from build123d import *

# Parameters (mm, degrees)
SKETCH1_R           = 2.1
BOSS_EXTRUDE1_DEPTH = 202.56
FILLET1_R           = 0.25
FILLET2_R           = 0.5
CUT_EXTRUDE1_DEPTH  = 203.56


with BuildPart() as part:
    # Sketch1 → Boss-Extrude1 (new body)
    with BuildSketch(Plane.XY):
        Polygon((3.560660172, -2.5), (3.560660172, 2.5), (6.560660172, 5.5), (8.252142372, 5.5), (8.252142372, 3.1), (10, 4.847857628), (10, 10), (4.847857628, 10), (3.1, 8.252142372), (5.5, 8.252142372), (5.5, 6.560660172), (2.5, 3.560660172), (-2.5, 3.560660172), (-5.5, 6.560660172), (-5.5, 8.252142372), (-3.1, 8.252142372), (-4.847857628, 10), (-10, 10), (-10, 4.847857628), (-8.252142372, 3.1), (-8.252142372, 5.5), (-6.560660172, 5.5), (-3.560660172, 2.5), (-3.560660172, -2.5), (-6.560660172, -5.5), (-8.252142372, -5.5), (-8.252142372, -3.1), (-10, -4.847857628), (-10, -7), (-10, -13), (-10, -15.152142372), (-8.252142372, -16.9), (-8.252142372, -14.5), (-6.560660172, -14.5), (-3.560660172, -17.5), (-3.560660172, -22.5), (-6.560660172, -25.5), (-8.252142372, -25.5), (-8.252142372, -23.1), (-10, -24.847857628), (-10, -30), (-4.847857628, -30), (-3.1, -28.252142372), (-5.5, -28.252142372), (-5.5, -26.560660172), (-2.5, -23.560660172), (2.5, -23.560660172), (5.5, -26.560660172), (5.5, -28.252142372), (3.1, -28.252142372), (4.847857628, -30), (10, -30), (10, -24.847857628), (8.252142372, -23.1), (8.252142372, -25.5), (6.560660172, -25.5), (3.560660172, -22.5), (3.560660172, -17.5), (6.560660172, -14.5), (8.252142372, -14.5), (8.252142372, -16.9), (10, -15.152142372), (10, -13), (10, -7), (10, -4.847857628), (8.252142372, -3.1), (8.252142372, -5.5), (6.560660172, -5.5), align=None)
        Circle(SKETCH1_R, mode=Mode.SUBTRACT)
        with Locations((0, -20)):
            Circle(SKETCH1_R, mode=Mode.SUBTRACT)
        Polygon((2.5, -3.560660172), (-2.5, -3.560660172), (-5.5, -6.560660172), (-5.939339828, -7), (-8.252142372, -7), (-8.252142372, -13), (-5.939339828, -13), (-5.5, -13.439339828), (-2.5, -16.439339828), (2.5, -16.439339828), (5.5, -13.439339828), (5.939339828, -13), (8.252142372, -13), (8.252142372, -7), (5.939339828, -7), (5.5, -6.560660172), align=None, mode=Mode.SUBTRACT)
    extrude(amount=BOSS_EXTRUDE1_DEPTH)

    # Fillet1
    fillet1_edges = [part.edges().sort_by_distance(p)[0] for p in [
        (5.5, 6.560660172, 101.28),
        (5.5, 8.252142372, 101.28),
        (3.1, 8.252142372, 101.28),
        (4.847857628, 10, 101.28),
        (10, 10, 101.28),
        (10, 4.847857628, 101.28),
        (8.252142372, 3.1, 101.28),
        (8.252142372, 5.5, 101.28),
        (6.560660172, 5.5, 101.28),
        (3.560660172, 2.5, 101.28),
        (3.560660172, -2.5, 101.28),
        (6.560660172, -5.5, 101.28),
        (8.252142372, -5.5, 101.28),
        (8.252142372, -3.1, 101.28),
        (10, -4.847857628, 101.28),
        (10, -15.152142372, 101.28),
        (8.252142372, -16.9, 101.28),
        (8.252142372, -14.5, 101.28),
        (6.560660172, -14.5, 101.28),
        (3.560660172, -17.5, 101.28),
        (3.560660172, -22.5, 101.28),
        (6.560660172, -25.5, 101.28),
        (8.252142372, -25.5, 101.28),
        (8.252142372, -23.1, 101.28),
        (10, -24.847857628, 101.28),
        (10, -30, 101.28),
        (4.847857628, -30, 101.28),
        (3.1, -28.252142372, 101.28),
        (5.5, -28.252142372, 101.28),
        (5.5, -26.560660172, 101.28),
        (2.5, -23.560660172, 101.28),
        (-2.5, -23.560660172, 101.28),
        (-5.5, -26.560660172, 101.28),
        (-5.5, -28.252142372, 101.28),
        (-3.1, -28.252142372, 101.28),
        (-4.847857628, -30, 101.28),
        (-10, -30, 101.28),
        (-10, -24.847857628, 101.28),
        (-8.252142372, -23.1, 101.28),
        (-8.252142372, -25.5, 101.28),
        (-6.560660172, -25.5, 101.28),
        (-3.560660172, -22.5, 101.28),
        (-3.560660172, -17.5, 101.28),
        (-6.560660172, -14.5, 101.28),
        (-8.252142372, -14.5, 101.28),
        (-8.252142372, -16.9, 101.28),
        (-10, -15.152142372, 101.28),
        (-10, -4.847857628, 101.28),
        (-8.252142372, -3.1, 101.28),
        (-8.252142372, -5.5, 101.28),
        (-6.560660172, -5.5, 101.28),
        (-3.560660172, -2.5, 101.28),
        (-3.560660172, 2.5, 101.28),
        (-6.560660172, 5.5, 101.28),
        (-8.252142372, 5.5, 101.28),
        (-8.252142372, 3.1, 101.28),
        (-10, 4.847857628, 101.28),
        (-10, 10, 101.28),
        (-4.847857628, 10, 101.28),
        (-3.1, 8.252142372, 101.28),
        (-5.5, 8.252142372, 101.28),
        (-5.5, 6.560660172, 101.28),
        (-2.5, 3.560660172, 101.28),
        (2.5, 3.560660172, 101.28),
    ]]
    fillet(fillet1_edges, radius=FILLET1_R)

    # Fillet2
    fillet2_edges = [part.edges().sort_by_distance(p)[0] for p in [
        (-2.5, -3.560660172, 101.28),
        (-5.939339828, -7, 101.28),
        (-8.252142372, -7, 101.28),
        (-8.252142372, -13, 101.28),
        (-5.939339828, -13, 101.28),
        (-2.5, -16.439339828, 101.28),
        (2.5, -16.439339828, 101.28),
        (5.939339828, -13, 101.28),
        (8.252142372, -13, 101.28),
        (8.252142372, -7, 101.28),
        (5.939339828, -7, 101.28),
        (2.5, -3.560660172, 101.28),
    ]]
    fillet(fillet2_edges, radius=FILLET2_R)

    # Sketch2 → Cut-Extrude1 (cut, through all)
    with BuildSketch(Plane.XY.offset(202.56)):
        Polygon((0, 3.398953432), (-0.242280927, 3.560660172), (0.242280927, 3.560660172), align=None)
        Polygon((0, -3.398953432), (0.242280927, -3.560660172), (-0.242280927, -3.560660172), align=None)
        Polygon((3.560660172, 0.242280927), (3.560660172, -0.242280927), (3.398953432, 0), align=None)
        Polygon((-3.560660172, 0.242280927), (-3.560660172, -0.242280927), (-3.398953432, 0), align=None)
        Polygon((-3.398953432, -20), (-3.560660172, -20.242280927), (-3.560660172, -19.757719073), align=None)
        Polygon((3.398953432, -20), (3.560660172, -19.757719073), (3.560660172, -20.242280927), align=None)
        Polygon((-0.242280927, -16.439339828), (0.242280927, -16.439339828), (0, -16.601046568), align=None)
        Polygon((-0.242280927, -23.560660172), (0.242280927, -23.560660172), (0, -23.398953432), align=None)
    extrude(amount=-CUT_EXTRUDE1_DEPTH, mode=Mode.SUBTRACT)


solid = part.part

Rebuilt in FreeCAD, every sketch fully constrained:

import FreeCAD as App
import Part
import Sketcher


def edges_at(feature, points):
    """Names of the edges that pass closest to the given points."""
    edges = feature.Shape.Edges
    near = lambda p: min(range(len(edges)), key=lambda i: edges[i].distToShape(Part.Vertex(*p))[0])
    return sorted({f"Edge{near(p) + 1}" for p in points})

doc = App.newDocument("Part")
params = doc.addObject("Spreadsheet::Sheet", "Params")
for row, (alias, value) in enumerate([
    ("sketch1_diameter", "4.2 mm"),
    ("sketch1_width", "5 mm"),
    ("sketch1_height", "6 mm"),
    ("sketch1_width2", "2.4 mm"),
    ("pad1_length", "202.56 mm"),
    ("fillet_radius", "0.25 mm"),
    ("fillet2_radius", "0.5 mm"),
], start=1):
    params.set(f"A{row}", alias)
    params.set(f"B{row}", "=" + value)
    params.setAlias(f"B{row}", alias)

body = doc.addObject("PartDesign::Body", "Body")

sketch1 = body.newObject("Sketcher::SketchObject", "Sketch")
sketch1.AttachmentSupport = (doc.getObject("XY_Plane"), [""])
sketch1.MapMode = "FlatFace"
sketch1.addGeometry(Part.LineSegment(App.Vector(3.56066, -2.5, 0), App.Vector(3.56066, 2.5, 0)), False)
sketch1.addGeometry(Part.LineSegment(App.Vector(3.56066, 2.5, 0), App.Vector(6.56066, 5.5, 0)), False)
sketch1.addGeometry(Part.LineSegment(App.Vector(6.56066, 5.5, 0), App.Vector(8.252142, 5.5, 0)), False)
sketch1.addGeometry(Part.LineSegment(App.Vector(8.252142, 5.5, 0), App.Vector(8.252142, 3.1, 0)), False)
sketch1.addGeometry(Part.LineSegment(App.Vector(8.252142, 3.1, 0), App.Vector(10, 4.847858, 0)), False)
sketch1.addGeometry(Part.LineSegment(App.Vector(10, 4.847858, 0), App.Vector(10, 10, 0)), False)
sketch1.addGeometry(Part.LineSegment(App.Vector(10, 10, 0), App.Vector(4.847858, 10, 0)), False)
sketch1.addGeometry(Part.LineSegment(App.Vector(4.847858, 10, 0), App.Vector(3.1, 8.252142, 0)), False)
sketch1.addGeometry(Part.LineSegment(App.Vector(3.1, 8.252142, 0), App.Vector(5.5, 8.252142, 0)), False)
sketch1.addGeometry(Part.LineSegment(App.Vector(5.5, 8.252142, 0), App.Vector(5.5, 6.56066, 0)), False)
sketch1.addGeometry(Part.LineSegment(App.Vector(5.5, 6.56066, 0), App.Vector(2.5, 3.56066, 0)), False)
sketch1.addGeometry(Part.LineSegment(App.Vector(2.5, 3.56066, 0), App.Vector(-2.5, 3.56066, 0)), False)
sketch1.addGeometry(Part.LineSegment(App.Vector(-2.5, 3.56066, 0), App.Vector(-5.5, 6.56066, 0)), False)
sketch1.addGeometry(Part.LineSegment(App.Vector(-5.5, 6.56066, 0), App.Vector(-5.5, 8.252142, 0)), False)
sketch1.addGeometry(Part.LineSegment(App.Vector(-5.5, 8.252142, 0), App.Vector(-3.1, 8.252142, 0)), False)
sketch1.addGeometry(Part.LineSegment(App.Vector(-3.1, 8.252142, 0), App.Vector(-4.847858, 10, 0)), False)
sketch1.addGeometry(Part.LineSegment(App.Vector(-4.847858, 10, 0), App.Vector(-10, 10, 0)), False)
sketch1.addGeometry(Part.LineSegment(App.Vector(-10, 10, 0), App.Vector(-10, 4.847858, 0)), False)
sketch1.addGeometry(Part.LineSegment(App.Vector(-10, 4.847858, 0), App.Vector(-8.252142, 3.1, 0)), False)
sketch1.addGeometry(Part.LineSegment(App.Vector(-8.252142, 3.1, 0), App.Vector(-8.252142, 5.5, 0)), False)
sketch1.addGeometry(Part.LineSegment(App.Vector(-8.252142, 5.5, 0), App.Vector(-6.56066, 5.5, 0)), False)
sketch1.addGeometry(Part.LineSegment(App.Vector(-6.56066, 5.5, 0), App.Vector(-3.56066, 2.5, 0)), False)
sketch1.addGeometry(Part.LineSegment(App.Vector(-3.56066, 2.5, 0), App.Vector(-3.56066, -2.5, 0)), False)
sketch1.addGeometry(Part.LineSegment(App.Vector(-3.56066, -2.5, 0), App.Vector(-6.56066, -5.5, 0)), False)
sketch1.addGeometry(Part.LineSegment(App.Vector(-6.56066, -5.5, 0), App.Vector(-8.252142, -5.5, 0)), False)
sketch1.addGeometry(Part.LineSegment(App.Vector(-8.252142, -5.5, 0), App.Vector(-8.252142, -3.1, 0)), False)
sketch1.addGeometry(Part.LineSegment(App.Vector(-8.252142, -3.1, 0), App.Vector(-10, -4.847858, 0)), False)
sketch1.addGeometry(Part.LineSegment(App.Vector(-10, -4.847858, 0), App.Vector(-10, -15.152142, 0)), False)
sketch1.addGeometry(Part.LineSegment(App.Vector(-10, -15.152142, 0), App.Vector(-8.252142, -16.9, 0)), False)
sketch1.addGeometry(Part.LineSegment(App.Vector(-8.252142, -16.9, 0), App.Vector(-8.252142, -14.5, 0)), False)
sketch1.addGeometry(Part.LineSegment(App.Vector(-8.252142, -14.5, 0), App.Vector(-6.56066, -14.5, 0)), False)
sketch1.addGeometry(Part.LineSegment(App.Vector(-6.56066, -14.5, 0), App.Vector(-3.56066, -17.5, 0)), False)
sketch1.addGeometry(Part.LineSegment(App.Vector(-3.56066, -17.5, 0), App.Vector(-3.56066, -22.5, 0)), False)
sketch1.addGeometry(Part.LineSegment(App.Vector(-3.56066, -22.5, 0), App.Vector(-6.56066, -25.5, 0)), False)
sketch1.addGeometry(Part.LineSegment(App.Vector(-6.56066, -25.5, 0), App.Vector(-8.252142, -25.5, 0)), False)
sketch1.addGeometry(Part.LineSegment(App.Vector(-8.252142, -25.5, 0), App.Vector(-8.252142, -23.1, 0)), False)
sketch1.addGeometry(Part.LineSegment(App.Vector(-8.252142, -23.1, 0), App.Vector(-10, -24.847858, 0)), False)
sketch1.addGeometry(Part.LineSegment(App.Vector(-10, -24.847858, 0), App.Vector(-10, -30, 0)), False)
sketch1.addGeometry(Part.LineSegment(App.Vector(-10, -30, 0), App.Vector(-4.847858, -30, 0)), False)
sketch1.addGeometry(Part.LineSegment(App.Vector(-4.847858, -30, 0), App.Vector(-3.1, -28.252142, 0)), False)
sketch1.addGeometry(Part.LineSegment(App.Vector(-3.1, -28.252142, 0), App.Vector(-5.5, -28.252142, 0)), False)
sketch1.addGeometry(Part.LineSegment(App.Vector(-5.5, -28.252142, 0), App.Vector(-5.5, -26.56066, 0)), False)
sketch1.addGeometry(Part.LineSegment(App.Vector(-5.5, -26.56066, 0), App.Vector(-2.5, -23.56066, 0)), False)
sketch1.addGeometry(Part.LineSegment(App.Vector(-2.5, -23.56066, 0), App.Vector(2.5, -23.56066, 0)), False)
sketch1.addGeometry(Part.LineSegment(App.Vector(2.5, -23.56066, 0), App.Vector(5.5, -26.56066, 0)), False)
sketch1.addGeometry(Part.LineSegment(App.Vector(5.5, -26.56066, 0), App.Vector(5.5, -28.252142, 0)), False)
sketch1.addGeometry(Part.LineSegment(App.Vector(5.5, -28.252142, 0), App.Vector(3.1, -28.252142, 0)), False)
sketch1.addGeometry(Part.LineSegment(App.Vector(3.1, -28.252142, 0), App.Vector(4.847858, -30, 0)), False)
sketch1.addGeometry(Part.LineSegment(App.Vector(4.847858, -30, 0), App.Vector(10, -30, 0)), False)
sketch1.addGeometry(Part.LineSegment(App.Vector(10, -30, 0), App.Vector(10, -24.847858, 0)), False)
sketch1.addGeometry(Part.LineSegment(App.Vector(10, -24.847858, 0), App.Vector(8.252142, -23.1, 0)), False)
sketch1.addGeometry(Part.LineSegment(App.Vector(8.252142, -23.1, 0), App.Vector(8.252142, -25.5, 0)), False)
sketch1.addGeometry(Part.LineSegment(App.Vector(8.252142, -25.5, 0), App.Vector(6.56066, -25.5, 0)), False)
sketch1.addGeometry(Part.LineSegment(App.Vector(6.56066, -25.5, 0), App.Vector(3.56066, -22.5, 0)), False)
sketch1.addGeometry(Part.LineSegment(App.Vector(3.56066, -22.5, 0), App.Vector(3.56066, -17.5, 0)), False)
sketch1.addGeometry(Part.LineSegment(App.Vector(3.56066, -17.5, 0), App.Vector(6.56066, -14.5, 0)), False)
sketch1.addGeometry(Part.LineSegment(App.Vector(6.56066, -14.5, 0), App.Vector(8.252142, -14.5, 0)), False)
sketch1.addGeometry(Part.LineSegment(App.Vector(8.252142, -14.5, 0), App.Vector(8.252142, -16.9, 0)), False)
sketch1.addGeometry(Part.LineSegment(App.Vector(8.252142, -16.9, 0), App.Vector(10, -15.152142, 0)), False)
sketch1.addGeometry(Part.LineSegment(App.Vector(10, -15.152142, 0), App.Vector(10, -4.847858, 0)), False)
sketch1.addGeometry(Part.LineSegment(App.Vector(10, -4.847858, 0), App.Vector(8.252142, -3.1, 0)), False)
sketch1.addGeometry(Part.LineSegment(App.Vector(8.252142, -3.1, 0), App.Vector(8.252142, -5.5, 0)), False)
sketch1.addGeometry(Part.LineSegment(App.Vector(8.252142, -5.5, 0), App.Vector(6.56066, -5.5, 0)), False)
sketch1.addGeometry(Part.LineSegment(App.Vector(6.56066, -5.5, 0), App.Vector(3.56066, -2.5, 0)), False)
sketch1.addGeometry(Part.Circle(App.Vector(0, -20, 0), App.Vector(0, 0, 1), 2.1), False)
sketch1.addGeometry(Part.LineSegment(App.Vector(-2.5, -3.56066, 0), App.Vector(2.5, -3.56066, 0)), False)
sketch1.addGeometry(Part.LineSegment(App.Vector(2.5, -3.56066, 0), App.Vector(5.93934, -7, 0)), False)
sketch1.addGeometry(Part.LineSegment(App.Vector(5.93934, -7, 0), App.Vector(8.252142, -7, 0)), False)
sketch1.addGeometry(Part.LineSegment(App.Vector(8.252142, -7, 0), App.Vector(8.252142, -13, 0)), False)
sketch1.addGeometry(Part.LineSegment(App.Vector(8.252142, -13, 0), App.Vector(5.93934, -13, 0)), False)
sketch1.addGeometry(Part.LineSegment(App.Vector(5.93934, -13, 0), App.Vector(2.5, -16.43934, 0)), False)
sketch1.addGeometry(Part.LineSegment(App.Vector(2.5, -16.43934, 0), App.Vector(-2.5, -16.43934, 0)), False)
sketch1.addGeometry(Part.LineSegment(App.Vector(-2.5, -16.43934, 0), App.Vector(-5.93934, -13, 0)), False)
sketch1.addGeometry(Part.LineSegment(App.Vector(-5.93934, -13, 0), App.Vector(-8.252142, -13, 0)), False)
sketch1.addGeometry(Part.LineSegment(App.Vector(-8.252142, -13, 0), App.Vector(-8.252142, -7, 0)), False)
sketch1.addGeometry(Part.LineSegment(App.Vector(-8.252142, -7, 0), App.Vector(-5.93934, -7, 0)), False)
sketch1.addGeometry(Part.LineSegment(App.Vector(-5.93934, -7, 0), App.Vector(-2.5, -3.56066, 0)), False)
sketch1.addGeometry(Part.Circle(App.Vector(0, 0, 0), App.Vector(0, 0, 1), 2.1), False)
sketch1.addConstraint(Sketcher.Constraint("Coincident", 0, 2, 1, 1))
sketch1.addConstraint(Sketcher.Constraint("Coincident", 1, 2, 2, 1))
sketch1.addConstraint(Sketcher.Constraint("Coincident", 2, 2, 3, 1))
sketch1.addConstraint(Sketcher.Constraint("Coincident", 3, 2, 4, 1))
sketch1.addConstraint(Sketcher.Constraint("Coincident", 4, 2, 5, 1))
sketch1.addConstraint(Sketcher.Constraint("Coincident", 5, 2, 6, 1))
sketch1.addConstraint(Sketcher.Constraint("Coincident", 6, 2, 7, 1))
sketch1.addConstraint(Sketcher.Constraint("Coincident", 7, 2, 8, 1))
sketch1.addConstraint(Sketcher.Constraint("Coincident", 8, 2, 9, 1))
sketch1.addConstraint(Sketcher.Constraint("Coincident", 9, 2, 10, 1))
sketch1.addConstraint(Sketcher.Constraint("Coincident", 10, 2, 11, 1))
sketch1.addConstraint(Sketcher.Constraint("Coincident", 11, 2, 12, 1))
sketch1.addConstraint(Sketcher.Constraint("Coincident", 12, 2, 13, 1))
sketch1.addConstraint(Sketcher.Constraint("Coincident", 13, 2, 14, 1))
sketch1.addConstraint(Sketcher.Constraint("Coincident", 14, 2, 15, 1))
sketch1.addConstraint(Sketcher.Constraint("Coincident", 15, 2, 16, 1))
sketch1.addConstraint(Sketcher.Constraint("Coincident", 16, 2, 17, 1))
sketch1.addConstraint(Sketcher.Constraint("Coincident", 17, 2, 18, 1))
sketch1.addConstraint(Sketcher.Constraint("Coincident", 18, 2, 19, 1))
sketch1.addConstraint(Sketcher.Constraint("Coincident", 19, 2, 20, 1))
sketch1.addConstraint(Sketcher.Constraint("Coincident", 20, 2, 21, 1))
sketch1.addConstraint(Sketcher.Constraint("Coincident", 21, 2, 22, 1))
sketch1.addConstraint(Sketcher.Constraint("Coincident", 22, 2, 23, 1))
sketch1.addConstraint(Sketcher.Constraint("Coincident", 23, 2, 24, 1))
sketch1.addConstraint(Sketcher.Constraint("Coincident", 24, 2, 25, 1))
sketch1.addConstraint(Sketcher.Constraint("Coincident", 25, 2, 26, 1))
sketch1.addConstraint(Sketcher.Constraint("Coincident", 26, 2, 27, 1))
sketch1.addConstraint(Sketcher.Constraint("Coincident", 27, 2, 28, 1))
sketch1.addConstraint(Sketcher.Constraint("Coincident", 28, 2, 29, 1))
sketch1.addConstraint(Sketcher.Constraint("Coincident", 29, 2, 30, 1))
sketch1.addConstraint(Sketcher.Constraint("Coincident", 30, 2, 31, 1))
sketch1.addConstraint(Sketcher.Constraint("Coincident", 31, 2, 32, 1))
sketch1.addConstraint(Sketcher.Constraint("Coincident", 32, 2, 33, 1))
sketch1.addConstraint(Sketcher.Constraint("Coincident", 33, 2, 34, 1))
sketch1.addConstraint(Sketcher.Constraint("Coincident", 34, 2, 35, 1))
sketch1.addConstraint(Sketcher.Constraint("Coincident", 35, 2, 36, 1))
sketch1.addConstraint(Sketcher.Constraint("Coincident", 36, 2, 37, 1))
sketch1.addConstraint(Sketcher.Constraint("Coincident", 37, 2, 38, 1))
sketch1.addConstraint(Sketcher.Constraint("Coincident", 38, 2, 39, 1))
sketch1.addConstraint(Sketcher.Constraint("Coincident", 39, 2, 40, 1))
sketch1.addConstraint(Sketcher.Constraint("Coincident", 40, 2, 41, 1))
sketch1.addConstraint(Sketcher.Constraint("Coincident", 41, 2, 42, 1))
sketch1.addConstraint(Sketcher.Constraint("Coincident", 42, 2, 43, 1))
sketch1.addConstraint(Sketcher.Constraint("Coincident", 43, 2, 44, 1))
sketch1.addConstraint(Sketcher.Constraint("Coincident", 44, 2, 45, 1))
sketch1.addConstraint(Sketcher.Constraint("Coincident", 45, 2, 46, 1))
sketch1.addConstraint(Sketcher.Constraint("Coincident", 46, 2, 47, 1))
sketch1.addConstraint(Sketcher.Constraint("Coincident", 47, 2, 48, 1))
sketch1.addConstraint(Sketcher.Constraint("Coincident", 48, 2, 49, 1))
sketch1.addConstraint(Sketcher.Constraint("Coincident", 49, 2, 50, 1))
sketch1.addConstraint(Sketcher.Constraint("Coincident", 50, 2, 51, 1))
sketch1.addConstraint(Sketcher.Constraint("Coincident", 51, 2, 52, 1))
sketch1.addConstraint(Sketcher.Constraint("Coincident", 52, 2, 53, 1))
sketch1.addConstraint(Sketcher.Constraint("Coincident", 53, 2, 54, 1))
sketch1.addConstraint(Sketcher.Constraint("Coincident", 54, 2, 55, 1))
sketch1.addConstraint(Sketcher.Constraint("Coincident", 55, 2, 56, 1))
sketch1.addConstraint(Sketcher.Constraint("Coincident", 56, 2, 57, 1))
sketch1.addConstraint(Sketcher.Constraint("Coincident", 57, 2, 58, 1))
sketch1.addConstraint(Sketcher.Constraint("Coincident", 58, 2, 59, 1))
sketch1.addConstraint(Sketcher.Constraint("Coincident", 59, 2, 60, 1))
sketch1.addConstraint(Sketcher.Constraint("Coincident", 60, 2, 61, 1))
sketch1.addConstraint(Sketcher.Constraint("Coincident", 61, 2, 62, 1))
sketch1.addConstraint(Sketcher.Constraint("Coincident", 62, 2, 63, 1))
sketch1.addConstraint(Sketcher.Constraint("Coincident", 63, 2, 0, 1))
sketch1.addConstraint(Sketcher.Constraint("Coincident", 65, 2, 66, 1))
sketch1.addConstraint(Sketcher.Constraint("Coincident", 66, 2, 67, 1))
sketch1.addConstraint(Sketcher.Constraint("Coincident", 67, 2, 68, 1))
sketch1.addConstraint(Sketcher.Constraint("Coincident", 68, 2, 69, 1))
sketch1.addConstraint(Sketcher.Constraint("Coincident", 69, 2, 70, 1))
sketch1.addConstraint(Sketcher.Constraint("Coincident", 70, 2, 71, 1))
sketch1.addConstraint(Sketcher.Constraint("Coincident", 71, 2, 72, 1))
sketch1.addConstraint(Sketcher.Constraint("Coincident", 72, 2, 73, 1))
sketch1.addConstraint(Sketcher.Constraint("Coincident", 73, 2, 74, 1))
sketch1.addConstraint(Sketcher.Constraint("Coincident", 74, 2, 75, 1))
sketch1.addConstraint(Sketcher.Constraint("Coincident", 75, 2, 76, 1))
sketch1.addConstraint(Sketcher.Constraint("Coincident", 76, 2, 65, 1))
sketch1.addConstraint(Sketcher.Constraint("Vertical", 0))
sketch1.addConstraint(Sketcher.Constraint("Horizontal", 2))
sketch1.addConstraint(Sketcher.Constraint("Vertical", 3))
sketch1.addConstraint(Sketcher.Constraint("Vertical", 5))
sketch1.addConstraint(Sketcher.Constraint("Horizontal", 6))
sketch1.addConstraint(Sketcher.Constraint("Horizontal", 8))
sketch1.addConstraint(Sketcher.Constraint("Vertical", 9))
sketch1.addConstraint(Sketcher.Constraint("Horizontal", 11))
sketch1.addConstraint(Sketcher.Constraint("Vertical", 13))
sketch1.addConstraint(Sketcher.Constraint("Horizontal", 14))
sketch1.addConstraint(Sketcher.Constraint("Horizontal", 16))
sketch1.addConstraint(Sketcher.Constraint("Vertical", 17))
sketch1.addConstraint(Sketcher.Constraint("Vertical", 19))
sketch1.addConstraint(Sketcher.Constraint("Horizontal", 20))
sketch1.addConstraint(Sketcher.Constraint("Vertical", 22))
sketch1.addConstraint(Sketcher.Constraint("Horizontal", 24))
sketch1.addConstraint(Sketcher.Constraint("Vertical", 25))
sketch1.addConstraint(Sketcher.Constraint("Vertical", 27))
sketch1.addConstraint(Sketcher.Constraint("Vertical", 29))
sketch1.addConstraint(Sketcher.Constraint("Horizontal", 30))
sketch1.addConstraint(Sketcher.Constraint("Vertical", 32))
sketch1.addConstraint(Sketcher.Constraint("Horizontal", 34))
sketch1.addConstraint(Sketcher.Constraint("Vertical", 35))
sketch1.addConstraint(Sketcher.Constraint("Vertical", 37))
sketch1.addConstraint(Sketcher.Constraint("Horizontal", 38))
sketch1.addConstraint(Sketcher.Constraint("Horizontal", 40))
sketch1.addConstraint(Sketcher.Constraint("Vertical", 41))
sketch1.addConstraint(Sketcher.Constraint("Horizontal", 43))
sketch1.addConstraint(Sketcher.Constraint("Vertical", 45))
sketch1.addConstraint(Sketcher.Constraint("Horizontal", 46))
sketch1.addConstraint(Sketcher.Constraint("Horizontal", 48))
sketch1.addConstraint(Sketcher.Constraint("Vertical", 49))
sketch1.addConstraint(Sketcher.Constraint("Vertical", 51))
sketch1.addConstraint(Sketcher.Constraint("Horizontal", 52))
sketch1.addConstraint(Sketcher.Constraint("Vertical", 54))
sketch1.addConstraint(Sketcher.Constraint("Horizontal", 56))
sketch1.addConstraint(Sketcher.Constraint("Vertical", 57))
sketch1.addConstraint(Sketcher.Constraint("Vertical", 59))
sketch1.addConstraint(Sketcher.Constraint("Vertical", 61))
sketch1.addConstraint(Sketcher.Constraint("Horizontal", 62))
sketch1.addConstraint(Sketcher.Constraint("Horizontal", 65))
sketch1.addConstraint(Sketcher.Constraint("Horizontal", 67))
sketch1.addConstraint(Sketcher.Constraint("Vertical", 68))
sketch1.addConstraint(Sketcher.Constraint("Horizontal", 69))
sketch1.addConstraint(Sketcher.Constraint("Horizontal", 71))
sketch1.addConstraint(Sketcher.Constraint("Horizontal", 73))
sketch1.addConstraint(Sketcher.Constraint("Vertical", 74))
sketch1.addConstraint(Sketcher.Constraint("Horizontal", 75))
sketch1.addConstraint(Sketcher.Constraint("Coincident", 77, 3, -1, 1))
sketch1.addConstraint(Sketcher.Constraint("Equal", 64, 77))
sketch1.addConstraint(Sketcher.Constraint("Symmetric", 0, 2, 22, 2, -1, 1))
sketch1.addConstraint(Sketcher.Constraint("Symmetric", 1, 2, 23, 2, -1, 1))
sketch1.addConstraint(Sketcher.Constraint("Symmetric", 3, 2, 25, 2, -1, 1))
sketch1.addConstraint(Sketcher.Constraint("Symmetric", 4, 2, 26, 2, -1, 1))
sketch1.addConstraint(Sketcher.Constraint("Symmetric", 17, 2, 59, 2, -1, 1))
sketch1.addConstraint(Sketcher.Constraint("Symmetric", 18, 2, 60, 2, -1, 1))
sketch1.addConstraint(Sketcher.Constraint("Symmetric", 20, 2, 62, 2, -1, 1))
sketch1.addConstraint(Sketcher.Constraint("Symmetric", 11, 2, 65, 2, -1, 1))
sketch1.addConstraint(Sketcher.Constraint("Symmetric", 9, 2, 12, 2, -2))
sketch1.addConstraint(Sketcher.Constraint("Symmetric", 7, 2, 14, 2, -2))
sketch1.addConstraint(Sketcher.Constraint("Symmetric", 6, 2, 15, 2, -2))
sketch1.addConstraint(Sketcher.Constraint("Symmetric", 4, 2, 17, 2, -2))
sketch1.addConstraint(Sketcher.Constraint("Symmetric", 3, 2, 18, 2, -2))
sketch1.addConstraint(Sketcher.Constraint("Symmetric", 1, 2, 20, 2, -2))
sketch1.addConstraint(Sketcher.Constraint("Symmetric", 41, 2, 44, 2, -2))
sketch1.addConstraint(Sketcher.Constraint("Symmetric", 39, 2, 46, 2, -2))
sketch1.addConstraint(Sketcher.Constraint("Symmetric", 38, 2, 47, 2, -2))
sketch1.addConstraint(Sketcher.Constraint("Symmetric", 36, 2, 49, 2, -2))
sketch1.addConstraint(Sketcher.Constraint("Symmetric", 35, 2, 50, 2, -2))
sketch1.addConstraint(Sketcher.Constraint("Symmetric", 33, 2, 52, 2, -2))
sketch1.addConstraint(Sketcher.Constraint("Symmetric", 32, 2, 53, 2, -2))
sketch1.addConstraint(Sketcher.Constraint("Symmetric", 30, 2, 55, 2, -2))
sketch1.addConstraint(Sketcher.Constraint("Symmetric", 28, 2, 57, 2, -2))
sketch1.addConstraint(Sketcher.Constraint("Symmetric", 69, 2, 72, 2, -2))
sketch1.addConstraint(Sketcher.Constraint("Symmetric", 67, 2, 74, 2, -2))
sketch1.addConstraint(Sketcher.Constraint("PointOnObject", 64, 3, -2))
sketch1.addConstraint(Sketcher.Constraint("Parallel", 1, 4))
sketch1.addConstraint(Sketcher.Constraint("Parallel", 4, 7))
sketch1.addConstraint(Sketcher.Constraint("Parallel", 7, 10))
sketch1.addConstraint(Sketcher.Constraint("Perpendicular", 10, 12))
sketch1.addConstraint(Sketcher.Constraint("Parallel", 12, 15))
sketch1.addConstraint(Sketcher.Constraint("Parallel", 18, 21))
sketch1.addConstraint(Sketcher.Constraint("Perpendicular", 26, 28))
sketch1.addConstraint(Sketcher.Constraint("Parallel", 28, 31))
sketch1.addConstraint(Sketcher.Constraint("Perpendicular", 31, 33))
sketch1.addConstraint(Sketcher.Constraint("Parallel", 33, 36))
sketch1.addConstraint(Sketcher.Constraint("Parallel", 36, 39))
sketch1.addConstraint(Sketcher.Constraint("Parallel", 39, 42))
sketch1.addConstraint(Sketcher.Constraint("Perpendicular", 42, 44))
sketch1.addConstraint(Sketcher.Constraint("Perpendicular", 53, 55))
sketch1.addConstraint(Sketcher.Constraint("Parallel", 55, 58))
sketch1.addConstraint(Sketcher.Constraint("Parallel", 60, 63))
sketch1.addConstraint(Sketcher.Constraint("Parallel", 63, 66))
sketch1.addConstraint(Sketcher.Constraint("Perpendicular", 66, 70))
sketch1.addConstraint(Sketcher.Constraint("Perpendicular", 70, 72))
sketch1.addConstraint(Sketcher.Constraint("Perpendicular", 72, 76))
sketch1.addConstraint(Sketcher.Constraint("Vertical", 25, 2, 28, 2))
sketch1.addConstraint(Sketcher.Constraint("Vertical", 23, 2, 30, 2))
sketch1.addConstraint(Sketcher.Constraint("Vertical", 22, 2, 31, 2))
sketch1.addConstraint(Sketcher.Constraint("Vertical", 30, 2, 33, 2))
sketch1.addConstraint(Sketcher.Constraint("Vertical", 29, 2, 34, 2))
sketch1.addConstraint(Sketcher.Constraint("Vertical", 27, 2, 36, 2))
sketch1.addConstraint(Sketcher.Constraint("Vertical", 15, 2, 38, 2))
sketch1.addConstraint(Sketcher.Constraint("Vertical", 14, 2, 39, 2))
sketch1.addConstraint(Sketcher.Constraint("Vertical", 13, 2, 40, 2))
sketch1.addConstraint(Sketcher.Constraint("Vertical", 11, 2, 42, 2))
sketch1.addConstraint(Sketcher.Constraint("Vertical", 61, 2, 67, 2))
sketch1.addConstraint(Sketcher.Constraint("Vertical", 66, 2, 69, 2))
sketch1.addConstraint(Sketcher.Constraint("Vertical", 65, 2, 70, 2))
sketch1.addConstraint(Sketcher.Constraint("Vertical", 72, 2, 75, 2))
sketch1.addConstraint(Sketcher.Constraint("Equal", 71, 0))
sketch1.addConstraint(Sketcher.Constraint("Equal", 46, 3))
sketch1.addConstraint(Sketcher.Constraint("Equal", 48, 5))
sketch1.addConstraint(Sketcher.Constraint("Equal", 62, 9))
sketch1.addConstraint(Sketcher.Constraint("Equal", 25, 29))
sketch1.addConstraint(Sketcher.Constraint("Equal", 22, 32))
sketch1.addConstraint(Sketcher.Constraint("Equal", 29, 35))
sketch1.addConstraint(Sketcher.Constraint("Equal", 17, 37))
sketch1.addConstraint(Sketcher.Constraint("Equal", 13, 41))
sketch1.addConstraint(Sketcher.Constraint("Equal", 4, 7))
sketch1.addConstraint(Sketcher.Constraint("Equal", 1, 10))
sketch1.addConstraint(Sketcher.Constraint("Diameter", 64, 4.2))
sketch1.addConstraint(Sketcher.Constraint("DistanceX", 11, 2, 11, 1, 5.0))
sketch1.addConstraint(Sketcher.Constraint("DistanceY", 68, 2, 68, 1, 6.0))
sketch1.addConstraint(Sketcher.Constraint("DistanceX", 8, 1, 8, 2, 2.4))
sketch1.addConstraint(Sketcher.Constraint("DistanceY", 64, 3, -1, 1, 20.0))
sketch1.addConstraint(Sketcher.Constraint("DistanceX", -1, 1, 4, 2, 10.0))
sketch1.addConstraint(Sketcher.Constraint("DistanceY", 37, 2, -1, 1, 30.0))
sketch1.addConstraint(Sketcher.Constraint("DistanceY", 66, 2, -1, 1, 7.0))
sketch1.addConstraint(Sketcher.Constraint("DistanceY", -1, 1, 1, 2, 5.5))
sketch1.addConstraint(Sketcher.Constraint("Distance", 66, 4.863961))
sketch1.addConstraint(Sketcher.Constraint("DistanceX", 2, 1, 2, 2, 1.691482))
sketch1.setExpression("Constraints[197]", "Params.sketch1_diameter")
sketch1.setExpression("Constraints[198]", "Params.sketch1_width")
sketch1.setExpression("Constraints[199]", "Params.sketch1_height")
sketch1.setExpression("Constraints[200]", "Params.sketch1_width2")
pad1 = body.newObject("PartDesign::Pad", "Pad")
pad1.Profile = sketch1
pad1.setExpression("Length", "Params.pad1_length")
doc.recompute()

fillet = body.newObject("PartDesign::Fillet", "Fillet")
fillet.Base = (pad1, edges_at(pad1, [
    (5.5, 6.561, 101.28),
    (5.5, 8.252, 101.28),
    (3.1, 8.252, 101.28),
    (4.848, 10, 101.28),
    (10, 10, 101.28),
    (10, 4.848, 101.28),
    (8.252, 3.1, 101.28),
    (8.252, 5.5, 101.28),
    (6.561, 5.5, 101.28),
    (3.561, 2.5, 101.28),
    (3.561, -2.5, 101.28),
    (6.561, -5.5, 101.28),
    (8.252, -5.5, 101.28),
    (8.252, -3.1, 101.28),
    (10, -4.848, 101.28),
    (10, -15.152, 101.28),
    (8.252, -16.9, 101.28),
    (8.252, -14.5, 101.28),
    (6.561, -14.5, 101.28),
    (3.561, -17.5, 101.28),
    (3.561, -22.5, 101.28),
    (6.561, -25.5, 101.28),
    (8.252, -25.5, 101.28),
    (8.252, -23.1, 101.28),
    (10, -24.848, 101.28),
    (10, -30, 101.28),
    (4.848, -30, 101.28),
    (3.1, -28.252, 101.28),
    (5.5, -28.252, 101.28),
    (5.5, -26.561, 101.28),
    (2.5, -23.561, 101.28),
    (-2.5, -23.561, 101.28),
    (-5.5, -26.561, 101.28),
    (-5.5, -28.252, 101.28),
    (-3.1, -28.252, 101.28),
    (-4.848, -30, 101.28),
    (-10, -30, 101.28),
    (-10, -24.848, 101.28),
    (-8.252, -23.1, 101.28),
    (-8.252, -25.5, 101.28),
    (-6.561, -25.5, 101.28),
    (-3.561, -22.5, 101.28),
    (-3.561, -17.5, 101.28),
    (-6.561, -14.5, 101.28),
    (-8.252, -14.5, 101.28),
    (-8.252, -16.9, 101.28),
    (-10, -15.152, 101.28),
    (-10, -4.848, 101.28),
    (-8.252, -3.1, 101.28),
    (-8.252, -5.5, 101.28),
    (-6.561, -5.5, 101.28),
    (-3.561, -2.5, 101.28),
    (-3.561, 2.5, 101.28),
    (-6.561, 5.5, 101.28),
    (-8.252, 5.5, 101.28),
    (-8.252, 3.1, 101.28),
    (-10, 4.848, 101.28),
    (-10, 10, 101.28),
    (-4.848, 10, 101.28),
    (-3.1, 8.252, 101.28),
    (-5.5, 8.252, 101.28),
    (-5.5, 6.561, 101.28),
    (-2.5, 3.561, 101.28),
    (2.5, 3.561, 101.28),
]))
fillet.setExpression("Radius", "Params.fillet_radius")
doc.recompute()

fillet2 = body.newObject("PartDesign::Fillet", "Fillet001")
fillet2.Base = (fillet, edges_at(fillet, [
    (-2.5, -3.561, 101.28),
    (-5.939, -7, 101.28),
    (-8.252, -7, 101.28),
    (-8.252, -13, 101.28),
    (-5.939, -13, 101.28),
    (-2.5, -16.439, 101.28),
    (2.5, -16.439, 101.28),
    (5.939, -13, 101.28),
    (8.252, -13, 101.28),
    (8.252, -7, 101.28),
    (5.939, -7, 101.28),
    (2.5, -3.561, 101.28),
]))
fillet2.setExpression("Radius", "Params.fillet2_radius")

sketch2 = body.newObject("Sketcher::SketchObject", "Sketch001")
sketch2.AttachmentSupport = (doc.getObject("XY_Plane"), [""])
sketch2.MapMode = "FlatFace"
sketch2.AttachmentOffset = App.Placement(App.Vector(0, 0, 202.56), App.Rotation())
sketch2.addGeometry(Part.LineSegment(App.Vector(-0.242281, 3.56066, 0), App.Vector(0, 3.398953, 0)), False)
sketch2.addGeometry(Part.LineSegment(App.Vector(0, 3.398953, 0), App.Vector(0.242281, 3.56066, 0)), False)
sketch2.addGeometry(Part.LineSegment(App.Vector(0.242281, 3.56066, 0), App.Vector(-0.242281, 3.56066, 0)), False)
sketch2.addGeometry(Part.LineSegment(App.Vector(0.242281, -3.56066, 0), App.Vector(0, -3.398953, 0)), False)
sketch2.addGeometry(Part.LineSegment(App.Vector(0, -3.398953, 0), App.Vector(-0.242281, -3.56066, 0)), False)
sketch2.addGeometry(Part.LineSegment(App.Vector(-0.242281, -3.56066, 0), App.Vector(0.242281, -3.56066, 0)), False)
sketch2.addGeometry(Part.LineSegment(App.Vector(3.56066, -0.242281, 0), App.Vector(3.56066, 0.242281, 0)), False)
sketch2.addGeometry(Part.LineSegment(App.Vector(3.56066, 0.242281, 0), App.Vector(3.398953, 0, 0)), False)
sketch2.addGeometry(Part.LineSegment(App.Vector(3.398953, 0, 0), App.Vector(3.56066, -0.242281, 0)), False)
sketch2.addGeometry(Part.LineSegment(App.Vector(-3.56066, 0.242281, 0), App.Vector(-3.56066, -0.242281, 0)), False)
sketch2.addGeometry(Part.LineSegment(App.Vector(-3.56066, -0.242281, 0), App.Vector(-3.398953, 0, 0)), False)
sketch2.addGeometry(Part.LineSegment(App.Vector(-3.398953, 0, 0), App.Vector(-3.56066, 0.242281, 0)), False)
sketch2.addGeometry(Part.LineSegment(App.Vector(-3.56066, -20.242281, 0), App.Vector(-3.398953, -20, 0)), False)
sketch2.addGeometry(Part.LineSegment(App.Vector(-3.398953, -20, 0), App.Vector(-3.56066, -19.757719, 0)), False)
sketch2.addGeometry(Part.LineSegment(App.Vector(-3.56066, -19.757719, 0), App.Vector(-3.56066, -20.242281, 0)), False)
sketch2.addGeometry(Part.LineSegment(App.Vector(3.56066, -19.757719, 0), App.Vector(3.398953, -20, 0)), False)
sketch2.addGeometry(Part.LineSegment(App.Vector(3.398953, -20, 0), App.Vector(3.56066, -20.242281, 0)), False)
sketch2.addGeometry(Part.LineSegment(App.Vector(3.56066, -20.242281, 0), App.Vector(3.56066, -19.757719, 0)), False)
sketch2.addGeometry(Part.LineSegment(App.Vector(0.242281, -16.43934, 0), App.Vector(-0.242281, -16.43934, 0)), False)
sketch2.addGeometry(Part.LineSegment(App.Vector(-0.242281, -16.43934, 0), App.Vector(0, -16.601047, 0)), False)
sketch2.addGeometry(Part.LineSegment(App.Vector(0, -16.601047, 0), App.Vector(0.242281, -16.43934, 0)), False)
sketch2.addGeometry(Part.LineSegment(App.Vector(-0.242281, -23.56066, 0), App.Vector(0.242281, -23.56066, 0)), False)
sketch2.addGeometry(Part.LineSegment(App.Vector(0.242281, -23.56066, 0), App.Vector(0, -23.398953, 0)), False)
sketch2.addGeometry(Part.LineSegment(App.Vector(0, -23.398953, 0), App.Vector(-0.242281, -23.56066, 0)), False)
sketch2.addConstraint(Sketcher.Constraint("Coincident", 0, 2, 1, 1))
sketch2.addConstraint(Sketcher.Constraint("Coincident", 1, 2, 2, 1))
sketch2.addConstraint(Sketcher.Constraint("Coincident", 2, 2, 0, 1))
sketch2.addConstraint(Sketcher.Constraint("Coincident", 3, 2, 4, 1))
sketch2.addConstraint(Sketcher.Constraint("Coincident", 4, 2, 5, 1))
sketch2.addConstraint(Sketcher.Constraint("Coincident", 5, 2, 3, 1))
sketch2.addConstraint(Sketcher.Constraint("Coincident", 6, 2, 7, 1))
sketch2.addConstraint(Sketcher.Constraint("Coincident", 7, 2, 8, 1))
sketch2.addConstraint(Sketcher.Constraint("Coincident", 8, 2, 6, 1))
sketch2.addConstraint(Sketcher.Constraint("Coincident", 9, 2, 10, 1))
sketch2.addConstraint(Sketcher.Constraint("Coincident", 10, 2, 11, 1))
sketch2.addConstraint(Sketcher.Constraint("Coincident", 11, 2, 9, 1))
sketch2.addConstraint(Sketcher.Constraint("Coincident", 12, 2, 13, 1))
sketch2.addConstraint(Sketcher.Constraint("Coincident", 13, 2, 14, 1))
sketch2.addConstraint(Sketcher.Constraint("Coincident", 14, 2, 12, 1))
sketch2.addConstraint(Sketcher.Constraint("Coincident", 15, 2, 16, 1))
sketch2.addConstraint(Sketcher.Constraint("Coincident", 16, 2, 17, 1))
sketch2.addConstraint(Sketcher.Constraint("Coincident", 17, 2, 15, 1))
sketch2.addConstraint(Sketcher.Constraint("Coincident", 18, 2, 19, 1))
sketch2.addConstraint(Sketcher.Constraint("Coincident", 19, 2, 20, 1))
sketch2.addConstraint(Sketcher.Constraint("Coincident", 20, 2, 18, 1))
sketch2.addConstraint(Sketcher.Constraint("Coincident", 21, 2, 22, 1))
sketch2.addConstraint(Sketcher.Constraint("Coincident", 22, 2, 23, 1))
sketch2.addConstraint(Sketcher.Constraint("Coincident", 23, 2, 21, 1))
sketch2.addConstraint(Sketcher.Constraint("Horizontal", 2))
sketch2.addConstraint(Sketcher.Constraint("Horizontal", 5))
sketch2.addConstraint(Sketcher.Constraint("Vertical", 6))
sketch2.addConstraint(Sketcher.Constraint("Vertical", 9))
sketch2.addConstraint(Sketcher.Constraint("Vertical", 14))
sketch2.addConstraint(Sketcher.Constraint("Vertical", 17))
sketch2.addConstraint(Sketcher.Constraint("Horizontal", 18))
sketch2.addConstraint(Sketcher.Constraint("Horizontal", 21))
sketch2.addConstraint(Sketcher.Constraint("Symmetric", 0, 2, 3, 2, -1, 1))
sketch2.addConstraint(Sketcher.Constraint("Symmetric", 1, 2, 4, 2, -1, 1))
sketch2.addConstraint(Sketcher.Constraint("Symmetric", 6, 2, 9, 2, -1, 1))
sketch2.addConstraint(Sketcher.Constraint("Symmetric", 7, 2, 10, 2, -1, 1))
sketch2.addConstraint(Sketcher.Constraint("Symmetric", 12, 2, 15, 2, -2))
sketch2.addConstraint(Sketcher.Constraint("Symmetric", 14, 2, 16, 2, -2))
sketch2.addConstraint(Sketcher.Constraint("PointOnObject", 0, 2, -2))
sketch2.addConstraint(Sketcher.Constraint("PointOnObject", 7, 2, -1))
sketch2.addConstraint(Sketcher.Constraint("PointOnObject", 19, 2, -2))
sketch2.addConstraint(Sketcher.Constraint("PointOnObject", 22, 2, -2))
sketch2.addConstraint(Sketcher.Constraint("Parallel", 0, 3))
sketch2.addConstraint(Sketcher.Constraint("Perpendicular", 3, 7))
sketch2.addConstraint(Sketcher.Constraint("Perpendicular", 4, 8))
sketch2.addConstraint(Sketcher.Constraint("Parallel", 8, 11))
sketch2.addConstraint(Sketcher.Constraint("Parallel", 10, 12))
sketch2.addConstraint(Sketcher.Constraint("Parallel", 11, 13))
sketch2.addConstraint(Sketcher.Constraint("Parallel", 12, 15))
sketch2.addConstraint(Sketcher.Constraint("Parallel", 13, 16))
sketch2.addConstraint(Sketcher.Constraint("Perpendicular", 15, 19))
sketch2.addConstraint(Sketcher.Constraint("Perpendicular", 16, 20))
sketch2.addConstraint(Sketcher.Constraint("Parallel", 19, 22))
sketch2.addConstraint(Sketcher.Constraint("Parallel", 20, 23))
sketch2.addConstraint(Sketcher.Constraint("Vertical", 10, 2, 12, 2))
sketch2.addConstraint(Sketcher.Constraint("Vertical", 11, 2, 13, 2))
sketch2.addConstraint(Sketcher.Constraint("Vertical", 4, 2, 18, 2))
sketch2.addConstraint(Sketcher.Constraint("Vertical", 20, 2, 21, 2))
sketch2.addConstraint(Sketcher.Constraint("Equal", 21, 6))
sketch2.addConstraint(Sketcher.Constraint("DistanceY", 12, 2, -1, 1, 20.0))
sketch2.addConstraint(Sketcher.Constraint("DistanceX", 2, 2, 2, 1, 0.484562))
sketch2.addConstraint(Sketcher.Constraint("Distance", 0, 0.291289))
sketch2.addConstraint(Sketcher.Constraint("DistanceY", -1, 1, 1, 2, 3.56066))
sketch2.addConstraint(Sketcher.Constraint("DistanceX", -1, 1, 6, 2, 3.56066))
sketch2.addConstraint(Sketcher.Constraint("DistanceY", 18, 2, -1, 1, 16.43934))
sketch2.addConstraint(Sketcher.Constraint("DistanceY", 21, 2, -1, 1, 23.56066))
pocket1 = body.newObject("PartDesign::Pocket", "Pocket")
pocket1.Profile = sketch2
pocket1.Type = "ThroughAll"

doc.recompute()
